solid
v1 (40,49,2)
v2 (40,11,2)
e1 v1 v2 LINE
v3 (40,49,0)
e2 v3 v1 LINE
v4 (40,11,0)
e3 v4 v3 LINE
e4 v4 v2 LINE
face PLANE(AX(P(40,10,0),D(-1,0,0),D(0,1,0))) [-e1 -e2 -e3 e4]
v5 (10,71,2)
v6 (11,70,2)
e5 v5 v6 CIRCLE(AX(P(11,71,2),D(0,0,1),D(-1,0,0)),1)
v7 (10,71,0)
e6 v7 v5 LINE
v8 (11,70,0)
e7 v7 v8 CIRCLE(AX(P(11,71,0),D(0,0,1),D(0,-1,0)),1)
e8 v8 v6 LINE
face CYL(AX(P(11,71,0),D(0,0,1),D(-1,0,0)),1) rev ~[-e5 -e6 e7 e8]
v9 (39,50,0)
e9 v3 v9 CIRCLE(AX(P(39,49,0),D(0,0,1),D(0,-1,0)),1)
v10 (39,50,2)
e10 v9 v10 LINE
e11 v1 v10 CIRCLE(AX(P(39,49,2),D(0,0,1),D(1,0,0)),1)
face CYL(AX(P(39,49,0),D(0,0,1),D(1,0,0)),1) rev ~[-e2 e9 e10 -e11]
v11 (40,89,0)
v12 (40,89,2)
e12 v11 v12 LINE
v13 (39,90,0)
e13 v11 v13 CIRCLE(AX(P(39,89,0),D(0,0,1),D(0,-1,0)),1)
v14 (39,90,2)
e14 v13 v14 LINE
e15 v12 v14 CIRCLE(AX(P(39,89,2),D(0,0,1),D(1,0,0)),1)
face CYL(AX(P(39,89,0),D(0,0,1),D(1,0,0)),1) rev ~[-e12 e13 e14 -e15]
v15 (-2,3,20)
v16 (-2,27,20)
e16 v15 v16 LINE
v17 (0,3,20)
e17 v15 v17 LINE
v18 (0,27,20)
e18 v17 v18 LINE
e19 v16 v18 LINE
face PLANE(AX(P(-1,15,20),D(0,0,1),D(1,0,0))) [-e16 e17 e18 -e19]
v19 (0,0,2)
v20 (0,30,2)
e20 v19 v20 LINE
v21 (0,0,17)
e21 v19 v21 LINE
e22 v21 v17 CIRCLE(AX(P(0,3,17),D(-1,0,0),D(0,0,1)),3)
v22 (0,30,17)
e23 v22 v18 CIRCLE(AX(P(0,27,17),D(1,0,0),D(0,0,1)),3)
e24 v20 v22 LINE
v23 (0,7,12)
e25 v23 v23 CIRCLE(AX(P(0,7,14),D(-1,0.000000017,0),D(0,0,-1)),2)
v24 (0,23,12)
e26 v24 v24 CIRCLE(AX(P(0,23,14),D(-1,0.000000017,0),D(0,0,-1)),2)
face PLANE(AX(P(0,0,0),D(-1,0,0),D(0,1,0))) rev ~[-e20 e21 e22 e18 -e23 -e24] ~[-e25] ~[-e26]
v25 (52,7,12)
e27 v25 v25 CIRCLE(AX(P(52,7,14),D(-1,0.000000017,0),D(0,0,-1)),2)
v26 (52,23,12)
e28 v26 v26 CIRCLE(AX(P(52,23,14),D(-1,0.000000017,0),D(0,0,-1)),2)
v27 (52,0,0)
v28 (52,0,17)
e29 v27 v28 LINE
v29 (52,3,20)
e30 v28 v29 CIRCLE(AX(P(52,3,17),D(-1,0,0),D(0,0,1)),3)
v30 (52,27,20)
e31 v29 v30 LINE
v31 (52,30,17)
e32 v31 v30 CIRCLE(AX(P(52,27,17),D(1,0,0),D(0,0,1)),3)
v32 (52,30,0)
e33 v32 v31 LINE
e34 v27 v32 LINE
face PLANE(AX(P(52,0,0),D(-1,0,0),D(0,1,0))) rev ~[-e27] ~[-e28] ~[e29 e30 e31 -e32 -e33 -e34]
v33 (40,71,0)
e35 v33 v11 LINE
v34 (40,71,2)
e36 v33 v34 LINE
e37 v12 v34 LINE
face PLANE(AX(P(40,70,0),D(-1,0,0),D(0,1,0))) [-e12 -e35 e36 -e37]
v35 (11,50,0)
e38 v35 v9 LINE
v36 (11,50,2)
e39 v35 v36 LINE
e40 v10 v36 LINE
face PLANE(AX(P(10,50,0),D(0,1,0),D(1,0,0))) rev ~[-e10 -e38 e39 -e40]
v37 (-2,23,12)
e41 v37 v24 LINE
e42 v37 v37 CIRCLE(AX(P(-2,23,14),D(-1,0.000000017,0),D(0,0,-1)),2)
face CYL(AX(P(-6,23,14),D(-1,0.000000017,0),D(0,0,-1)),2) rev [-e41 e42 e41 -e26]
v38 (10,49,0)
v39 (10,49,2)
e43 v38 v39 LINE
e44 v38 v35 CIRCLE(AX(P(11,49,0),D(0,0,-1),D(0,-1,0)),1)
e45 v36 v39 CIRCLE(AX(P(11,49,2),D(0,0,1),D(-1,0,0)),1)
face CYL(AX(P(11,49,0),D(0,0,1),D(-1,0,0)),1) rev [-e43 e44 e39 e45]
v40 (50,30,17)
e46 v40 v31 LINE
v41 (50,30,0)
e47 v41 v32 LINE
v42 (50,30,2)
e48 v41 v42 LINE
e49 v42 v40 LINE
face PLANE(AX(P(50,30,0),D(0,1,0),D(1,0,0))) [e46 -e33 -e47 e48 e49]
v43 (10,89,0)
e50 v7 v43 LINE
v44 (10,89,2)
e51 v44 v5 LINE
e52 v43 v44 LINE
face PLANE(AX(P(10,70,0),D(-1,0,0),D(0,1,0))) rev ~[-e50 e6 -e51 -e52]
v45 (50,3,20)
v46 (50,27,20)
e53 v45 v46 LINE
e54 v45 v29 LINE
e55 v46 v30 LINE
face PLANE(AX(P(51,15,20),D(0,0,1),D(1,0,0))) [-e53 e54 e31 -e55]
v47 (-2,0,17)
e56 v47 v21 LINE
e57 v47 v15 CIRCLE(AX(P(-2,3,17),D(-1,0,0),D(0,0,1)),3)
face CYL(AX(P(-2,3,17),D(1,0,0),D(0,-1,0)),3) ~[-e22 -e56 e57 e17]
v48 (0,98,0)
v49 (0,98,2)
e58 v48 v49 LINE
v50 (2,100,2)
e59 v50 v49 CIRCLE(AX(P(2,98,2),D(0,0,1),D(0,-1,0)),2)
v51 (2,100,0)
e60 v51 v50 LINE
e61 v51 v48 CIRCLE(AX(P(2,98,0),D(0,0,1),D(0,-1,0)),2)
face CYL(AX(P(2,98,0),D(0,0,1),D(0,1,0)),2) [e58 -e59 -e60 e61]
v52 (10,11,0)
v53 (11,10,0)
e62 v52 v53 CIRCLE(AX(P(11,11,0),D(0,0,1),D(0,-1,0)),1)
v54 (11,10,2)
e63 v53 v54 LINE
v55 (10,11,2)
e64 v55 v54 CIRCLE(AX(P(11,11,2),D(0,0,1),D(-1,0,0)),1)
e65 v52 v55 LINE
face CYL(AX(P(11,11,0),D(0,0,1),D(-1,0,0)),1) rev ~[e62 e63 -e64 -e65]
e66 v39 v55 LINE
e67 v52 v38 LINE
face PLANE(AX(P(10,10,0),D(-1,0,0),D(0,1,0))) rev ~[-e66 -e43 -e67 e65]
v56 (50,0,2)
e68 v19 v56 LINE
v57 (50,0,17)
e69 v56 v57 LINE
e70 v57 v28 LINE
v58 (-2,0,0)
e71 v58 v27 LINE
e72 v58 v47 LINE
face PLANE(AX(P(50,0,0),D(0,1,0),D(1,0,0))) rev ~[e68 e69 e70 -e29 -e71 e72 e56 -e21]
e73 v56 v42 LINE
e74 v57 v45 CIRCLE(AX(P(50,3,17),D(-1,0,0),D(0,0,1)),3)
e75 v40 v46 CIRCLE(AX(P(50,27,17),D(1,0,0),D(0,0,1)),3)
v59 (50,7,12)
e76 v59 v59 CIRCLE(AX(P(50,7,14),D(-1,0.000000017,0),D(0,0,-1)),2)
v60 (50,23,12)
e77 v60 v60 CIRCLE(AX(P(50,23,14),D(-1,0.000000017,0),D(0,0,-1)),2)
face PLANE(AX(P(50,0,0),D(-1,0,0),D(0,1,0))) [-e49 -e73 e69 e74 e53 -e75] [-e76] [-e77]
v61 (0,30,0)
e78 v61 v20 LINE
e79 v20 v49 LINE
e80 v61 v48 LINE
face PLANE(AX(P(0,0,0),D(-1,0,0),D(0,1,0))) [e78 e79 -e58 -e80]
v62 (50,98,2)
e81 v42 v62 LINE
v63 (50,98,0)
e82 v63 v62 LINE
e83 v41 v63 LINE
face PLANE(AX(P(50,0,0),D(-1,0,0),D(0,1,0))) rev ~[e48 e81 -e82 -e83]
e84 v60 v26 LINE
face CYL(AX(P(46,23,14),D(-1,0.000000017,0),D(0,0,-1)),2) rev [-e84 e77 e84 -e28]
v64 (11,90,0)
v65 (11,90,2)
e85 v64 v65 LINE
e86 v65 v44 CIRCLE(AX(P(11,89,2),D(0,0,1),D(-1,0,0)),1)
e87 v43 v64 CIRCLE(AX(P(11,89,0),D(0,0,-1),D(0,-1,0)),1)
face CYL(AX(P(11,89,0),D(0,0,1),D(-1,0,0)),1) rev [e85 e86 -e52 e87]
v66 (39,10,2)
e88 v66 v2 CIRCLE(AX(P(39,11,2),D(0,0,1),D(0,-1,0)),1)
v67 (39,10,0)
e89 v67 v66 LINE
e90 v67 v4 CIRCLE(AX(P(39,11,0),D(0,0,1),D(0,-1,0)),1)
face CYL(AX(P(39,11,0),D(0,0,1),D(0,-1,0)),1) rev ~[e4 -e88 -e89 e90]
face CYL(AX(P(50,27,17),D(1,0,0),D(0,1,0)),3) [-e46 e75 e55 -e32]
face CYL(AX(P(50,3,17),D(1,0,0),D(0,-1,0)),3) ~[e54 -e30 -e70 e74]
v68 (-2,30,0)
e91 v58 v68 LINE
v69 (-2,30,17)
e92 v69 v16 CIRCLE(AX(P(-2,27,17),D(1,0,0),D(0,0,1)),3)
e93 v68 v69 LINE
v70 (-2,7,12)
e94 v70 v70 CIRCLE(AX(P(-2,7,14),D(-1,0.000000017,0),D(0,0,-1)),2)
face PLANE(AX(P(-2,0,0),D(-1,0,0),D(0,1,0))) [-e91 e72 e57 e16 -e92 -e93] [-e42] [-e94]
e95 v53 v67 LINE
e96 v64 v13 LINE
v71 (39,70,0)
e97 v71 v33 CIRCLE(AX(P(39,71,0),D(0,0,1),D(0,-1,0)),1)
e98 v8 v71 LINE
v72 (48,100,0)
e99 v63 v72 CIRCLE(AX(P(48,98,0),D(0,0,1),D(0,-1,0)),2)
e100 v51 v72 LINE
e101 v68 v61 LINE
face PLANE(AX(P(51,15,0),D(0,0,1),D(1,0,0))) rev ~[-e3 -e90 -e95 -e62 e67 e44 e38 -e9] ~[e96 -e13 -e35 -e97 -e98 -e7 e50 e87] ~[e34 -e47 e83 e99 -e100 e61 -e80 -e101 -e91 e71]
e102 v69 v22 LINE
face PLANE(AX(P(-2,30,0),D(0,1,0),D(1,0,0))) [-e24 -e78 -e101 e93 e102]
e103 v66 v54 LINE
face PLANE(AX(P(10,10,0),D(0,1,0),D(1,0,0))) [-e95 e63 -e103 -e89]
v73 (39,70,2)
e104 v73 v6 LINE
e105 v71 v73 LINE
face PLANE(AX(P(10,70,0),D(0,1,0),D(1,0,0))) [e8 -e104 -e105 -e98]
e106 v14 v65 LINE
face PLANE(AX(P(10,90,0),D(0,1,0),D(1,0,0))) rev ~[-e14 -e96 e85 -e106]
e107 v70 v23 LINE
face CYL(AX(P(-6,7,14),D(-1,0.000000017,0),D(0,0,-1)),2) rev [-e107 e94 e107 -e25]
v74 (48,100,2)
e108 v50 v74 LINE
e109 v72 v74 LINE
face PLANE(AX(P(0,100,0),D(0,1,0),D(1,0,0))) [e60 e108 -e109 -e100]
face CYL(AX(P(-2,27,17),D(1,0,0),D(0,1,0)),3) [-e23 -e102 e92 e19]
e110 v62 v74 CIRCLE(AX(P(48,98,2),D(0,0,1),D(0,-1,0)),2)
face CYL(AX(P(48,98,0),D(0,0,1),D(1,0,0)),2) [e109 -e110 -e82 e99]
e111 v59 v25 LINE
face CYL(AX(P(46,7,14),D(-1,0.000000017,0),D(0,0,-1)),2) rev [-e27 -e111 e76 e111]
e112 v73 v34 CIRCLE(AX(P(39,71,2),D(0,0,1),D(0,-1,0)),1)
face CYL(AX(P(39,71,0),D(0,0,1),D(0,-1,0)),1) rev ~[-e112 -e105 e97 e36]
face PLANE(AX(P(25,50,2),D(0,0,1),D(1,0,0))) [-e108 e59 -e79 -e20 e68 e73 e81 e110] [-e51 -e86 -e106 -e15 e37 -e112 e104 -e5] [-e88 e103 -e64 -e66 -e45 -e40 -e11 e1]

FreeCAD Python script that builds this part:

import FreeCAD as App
import Part
import Sketcher
from FreeCAD import Vector


def edges_at(feature, points):
    """Names of the edges that pass closest to the given points."""
    edges = feature.Shape.Edges
    near = lambda p: min(range(len(edges)), key=lambda i: edges[i].distToShape(Part.Vertex(*p))[0])
    return sorted({f"Edge{near(p) + 1}" for p in points})


def add_polygon(sketch, points):
    """Adds a closed chain of lines whose ends are joined by coincident constraints."""
    first, n = sketch.GeometryCount, len(points)
    for a, b in zip(points, points[1:] + points[:1]):
        sketch.addGeometry(Part.LineSegment(App.Vector(*a, 0), App.Vector(*b, 0)), False)
    for i in range(n):
        sketch.addConstraint(Sketcher.Constraint("Coincident", first + i, 2, first + (i + 1) % n, 1))

doc = App.newDocument("Part")
body = doc.addObject("PartDesign::Body", "Body")

sketch1 = doc.addObject("Sketcher::SketchObject", "Sketch")
body.addObject(sketch1)
sketch1.AttachmentSupport = (doc.XY_Plane, [""])
sketch1.MapMode = "FlatFace"
sketch1.addGeometry(Part.Circle(Vector(0, 0, 0), Vector(0, 0, 1), 2), False)
sketch1.addConstraint([
    Sketcher.Constraint("Coincident", 0, 3, -1, 1),
    Sketcher.Constraint("Diameter", 0, 4.0),
])
pad1 = doc.addObject("PartDesign::Pad", "Pad")
body.addObject(pad1)
pad1.Profile = sketch1
pad1.Length = 10
body2 = doc.addObject("PartDesign::Body", "Body001")
doc.recompute()

body.Placement = App.Placement(Vector(0, 0, 0), App.Rotation(Vector(0, 1, 0), 90))
boolean = doc.addObject("PartDesign::Boolean", "Boolean")
body2.addObject(boolean)
boolean.Type = "Fuse"
boolean.addObjects([body])
body3 = doc.addObject("PartDesign::Body", "Body002")
doc.recompute()

body2.Placement = App.Placement(Vector(-6, 23, 14), App.Rotation(Vector(0, 0, 1), 0))
boolean2 = doc.addObject("PartDesign::Boolean", "Boolean001")
body3.addObject(boolean2)
boolean2.Type = "Fuse"
boolean2.addObjects([body2])
body4 = doc.addObject("PartDesign::Body", "Body003")

sketch2 = doc.addObject("Sketcher::SketchObject", "Sketch001")
body4.addObject(sketch2)
sketch2.AttachmentSupport = (doc.getObject("XY_Plane003"), [""])
sketch2.MapMode = "FlatFace"
sketch2.addGeometry(Part.Circle(Vector(0, 0, 0), Vector(0, 0, 1), 2), False)
sketch2.addConstraint([
    Sketcher.Constraint("Coincident", 0, 3, -1, 1),
    Sketcher.Constraint("Diameter", 0, 4.0),
])
pad2 = doc.addObject("PartDesign::Pad", "Pad001")
body4.addObject(pad2)
pad2.Profile = sketch2
pad2.Length = 10
body5 = doc.addObject("PartDesign::Body", "Body004")
doc.recompute()

body4.Placement = App.Placement(Vector(0, 0, 0), App.Rotation(Vector(0, 1, 0), 90))
boolean3 = doc.addObject("PartDesign::Boolean", "Boolean002")
body5.addObject(boolean3)
boolean3.Type = "Fuse"
boolean3.addObjects([body4])
body6 = doc.addObject("PartDesign::Body", "Body005")
doc.recompute()

body5.Placement = App.Placement(Vector(-6, 7, 14), App.Rotation(Vector(0, 0, 1), 0))
boolean4 = doc.addObject("PartDesign::Boolean", "Boolean003")
body6.addObject(boolean4)
boolean4.Type = "Fuse"
boolean4.addObjects([body5])
body7 = doc.addObject("PartDesign::Body", "Body006")

sketch3 = doc.addObject("Sketcher::SketchObject", "Sketch002")
body7.addObject(sketch3)
sketch3.AttachmentSupport = (doc.getObject("XY_Plane006"), [""])
sketch3.MapMode = "FlatFace"
add_polygon(sketch3, [(-2, 30), (-2, 0), (0, 0), (0, 30)])
sketch3.addConstraint([
    Sketcher.Constraint("Vertical", 0),
    Sketcher.Constraint("Horizontal", 1),
    Sketcher.Constraint("Vertical", 2),
    Sketcher.Constraint("Horizontal", 3),
    Sketcher.Constraint("Coincident", 1, 2, -1, 1),
    Sketcher.Constraint("DistanceX", 1, 1, 1, 2, 2.0),
    Sketcher.Constraint("DistanceY", 0, 2, 0, 1, 30.0),
])
pad3 = doc.addObject("PartDesign::Pad", "Pad002")
body7.addObject(pad3)
pad3.Profile = sketch3
pad3.Length = 20
doc.recompute()

fillet = doc.addObject("PartDesign::Fillet", "Fillet")
body7.addObject(fillet)
fillet.Base = (pad3, edges_at(pad3, [(-1, 0, 20), (-1, 30, 20)]))
fillet.Radius = 3
doc.recompute()

boolean5 = doc.addObject("PartDesign::Boolean", "Boolean004")
body7.addObject(boolean5)
boolean5.Type = "Cut"
boolean5.addObjects([body6])
doc.recompute()

boolean6 = doc.addObject("PartDesign::Boolean", "Boolean005")
body7.addObject(boolean6)
boolean6.Type = "Cut"
boolean6.addObjects([body3])
body8 = doc.addObject("PartDesign::Body", "Body007")

sketch4 = doc.addObject("Sketcher::SketchObject", "Sketch003")
body8.addObject(sketch4)
sketch4.AttachmentSupport = (doc.getObject("XY_Plane007"), [""])
sketch4.MapMode = "FlatFace"
sketch4.addGeometry(Part.Circle(Vector(0, 0, 0), Vector(0, 0, 1), 2), False)
sketch4.addConstraint([
    Sketcher.Constraint("Coincident", 0, 3, -1, 1),
    Sketcher.Constraint("Diameter", 0, 4.0),
])
pad4 = doc.addObject("PartDesign::Pad", "Pad003")
body8.addObject(pad4)
pad4.Profile = sketch4
pad4.Length = 10
body9 = doc.addObject("PartDesign::Body", "Body008")
doc.recompute()

body8.Placement = App.Placement(Vector(0, 0, 0), App.Rotation(Vector(0, 1, 0), 90))
boolean7 = doc.addObject("PartDesign::Boolean", "Boolean006")
body9.addObject(boolean7)
boolean7.Type = "Fuse"
boolean7.addObjects([body8])
body10 = doc.addObject("PartDesign::Body", "Body009")
doc.recompute()

body9.Placement = App.Placement(Vector(-6, 23, 14), App.Rotation(Vector(0, 0, 1), 0))
boolean8 = doc.addObject("PartDesign::Boolean", "Boolean007")
body10.addObject(boolean8)
boolean8.Type = "Fuse"
boolean8.addObjects([body9])
body11 = doc.addObject("PartDesign::Body", "Body010")

sketch5 = doc.addObject("Sketcher::SketchObject", "Sketch004")
body11.addObject(sketch5)
sketch5.AttachmentSupport = (doc.getObject("XY_Plane010"), [""])
sketch5.MapMode = "FlatFace"
sketch5.addGeometry(Part.Circle(Vector(0, 0, 0), Vector(0, 0, 1), 2), False)
sketch5.addConstraint([
    Sketcher.Constraint("Coincident", 0, 3, -1, 1),
    Sketcher.Constraint("Diameter", 0, 4.0),
])
pad5 = doc.addObject("PartDesign::Pad", "Pad004")
body11.addObject(pad5)
pad5.Profile = sketch5
pad5.Length = 10
body12 = doc.addObject("PartDesign::Body", "Body011")
doc.recompute()

body11.Placement = App.Placement(Vector(0, 0, 0), App.Rotation(Vector(0, 1, 0), 90))
boolean9 = doc.addObject("PartDesign::Boolean", "Boolean008")
body12.addObject(boolean9)
boolean9.Type = "Fuse"
boolean9.addObjects([body11])
body13 = doc.addObject("PartDesign::Body", "Body012")
doc.recompute()

body12.Placement = App.Placement(Vector(-6, 7, 14), App.Rotation(Vector(0, 0, 1), 0))
boolean10 = doc.addObject("PartDesign::Boolean", "Boolean009")
body13.addObject(boolean10)
boolean10.Type = "Fuse"
boolean10.addObjects([body12])
body14 = doc.addObject("PartDesign::Body", "Body013")

sketch6 = doc.addObject("Sketcher::SketchObject", "Sketch005")
body14.addObject(sketch6)
sketch6.AttachmentSupport = (doc.getObject("XY_Plane013"), [""])
sketch6.MapMode = "FlatFace"
add_polygon(sketch6, [(-2, 30), (-2, 0), (0, 0), (0, 30)])
sketch6.addConstraint([
    Sketcher.Constraint("Vertical", 0),
    Sketcher.Constraint("Horizontal", 1),
    Sketcher.Constraint("Vertical", 2),
    Sketcher.Constraint("Horizontal", 3),
    Sketcher.Constraint("Coincident", 1, 2, -1, 1),
    Sketcher.Constraint("DistanceX", 1, 1, 1, 2, 2.0),
    Sketcher.Constraint("DistanceY", 0, 2, 0, 1, 30.0),
])
pad6 = doc.addObject("PartDesign::Pad", "Pad005")
body14.addObject(pad6)
pad6.Profile = sketch6
pad6.Length = 20
doc.recompute()

fillet2 = doc.addObject("PartDesign::Fillet", "Fillet001")
body14.addObject(fillet2)
fillet2.Base = (pad6, edges_at(pad6, [(-1, 0, 20), (-1, 30, 20)]))
fillet2.Radius = 3
doc.recompute()

boolean11 = doc.addObject("PartDesign::Boolean", "Boolean010")
body14.addObject(boolean11)
boolean11.Type = "Cut"
boolean11.addObjects([body13])
doc.recompute()

boolean12 = doc.addObject("PartDesign::Boolean", "Boolean011")
body14.addObject(boolean12)
boolean12.Type = "Cut"
boolean12.addObjects([body10])
body15 = doc.addObject("PartDesign::Body", "Body014")
doc.recompute()

body14.Placement = App.Placement(Vector(52, 0, 0), App.Rotation(Vector(0, 0, 1), 0))
boolean13 = doc.addObject("PartDesign::Boolean", "Boolean012")
body15.addObject(boolean13)
boolean13.Type = "Fuse"
boolean13.addObjects([body14])
body16 = doc.addObject("PartDesign::Body", "Body015")

sketch7 = doc.addObject("Sketcher::SketchObject", "Sketch006")
body16.addObject(sketch7)
sketch7.AttachmentSupport = (doc.getObject("XY_Plane015"), [""])
sketch7.MapMode = "FlatFace"
add_polygon(sketch7, [(10, 50), (10, 10), (40, 10), (40, 50)])
sketch7.addConstraint([
    Sketcher.Constraint("Vertical", 0),
    Sketcher.Constraint("Horizontal", 1),
    Sketcher.Constraint("Vertical", 2),
    Sketcher.Constraint("Horizontal", 3),
    Sketcher.Constraint("DistanceX", 1, 1, 1, 2, 30.0),
    Sketcher.Constraint("DistanceY", 0, 2, 0, 1, 40.0),
    Sketcher.Constraint("DistanceX", -1, 1, 0, 2, 10.0),
    Sketcher.Constraint("DistanceY", -1, 1, 0, 2, 10.0),
])
pad7 = doc.addObject("PartDesign::Pad", "Pad006")
body16.addObject(pad7)
pad7.Profile = sketch7
pad7.Length = 10
doc.recompute()

fillet3 = doc.addObject("PartDesign::Fillet", "Fillet002")
body16.addObject(fillet3)
fillet3.Base = (pad7, edges_at(pad7, [
    (10, 10, 5),
    (10, 50, 5),
    (40, 10, 5),
    (40, 50, 5),
]))
fillet3.Radius = 1
body17 = doc.addObject("PartDesign::Body", "Body016")

sketch8 = doc.addObject("Sketcher::SketchObject", "Sketch007")
body17.addObject(sketch8)
sketch8.AttachmentSupport = (doc.getObject("XY_Plane016"), [""])
sketch8.MapMode = "FlatFace"
add_polygon(sketch8, [(10, 90), (10, 70), (40, 70), (40, 90)])
sketch8.addConstraint([
    Sketcher.Constraint("Vertical", 0),
    Sketcher.Constraint("Horizontal", 1),
    Sketcher.Constraint("Vertical", 2),
    Sketcher.Constraint("Horizontal", 3),
    Sketcher.Constraint("DistanceX", 1, 1, 1, 2, 30.0),
    Sketcher.Constraint("DistanceY", 0, 2, 0, 1, 20.0),
    Sketcher.Constraint("DistanceX", -1, 1, 0, 2, 10.0),
    Sketcher.Constraint("DistanceY", -1, 1, 0, 2, 70.0),
])
pad8 = doc.addObject("PartDesign::Pad", "Pad007")
body17.addObject(pad8)
pad8.Profile = sketch8
pad8.Length = 10
doc.recompute()

fillet4 = doc.addObject("PartDesign::Fillet", "Fillet003")
body17.addObject(fillet4)
fillet4.Base = (pad8, edges_at(pad8, [
    (10, 70, 5),
    (10, 90, 5),
    (40, 70, 5),
    (40, 90, 5),
]))
fillet4.Radius = 1
body18 = doc.addObject("PartDesign::Body", "Body017")

sketch9 = doc.addObject("Sketcher::SketchObject", "Sketch008")
body18.addObject(sketch9)
sketch9.AttachmentSupport = (doc.getObject("XY_Plane017"), [""])
sketch9.MapMode = "FlatFace"
add_polygon(sketch9, [(0, 100), (0, 0), (50, 0), (50, 100)])
sketch9.addConstraint([
    Sketcher.Constraint("Vertical", 0),
    Sketcher.Constraint("Horizontal", 1),
    Sketcher.Constraint("Vertical", 2),
    Sketcher.Constraint("Horizontal", 3),
    Sketcher.Constraint("Coincident", 0, 2, -1, 1),
    Sketcher.Constraint("DistanceX", 1, 1, 1, 2, 50.0),
    Sketcher.Constraint("DistanceY", 0, 2, 0, 1, 100.0),
])
pad9 = doc.addObject("PartDesign::Pad", "Pad008")
body18.addObject(pad9)
pad9.Profile = sketch9
pad9.Length = 2
doc.recompute()

fillet5 = doc.addObject("PartDesign::Fillet", "Fillet004")
body18.addObject(fillet5)
fillet5.Base = (pad9, edges_at(pad9, [(50, 100, 1)]))
fillet5.Radius = 2
doc.recompute()

fillet6 = doc.addObject("PartDesign::Fillet", "Fillet005")
body18.addObject(fillet6)
fillet6.Base = (fillet5, edges_at(fillet5, [(0, 100, 1)]))
fillet6.Radius = 2
doc.recompute()

boolean14 = doc.addObject("PartDesign::Boolean", "Boolean013")
body18.addObject(boolean14)
boolean14.Type = "Cut"
boolean14.addObjects([body17])
doc.recompute()

boolean15 = doc.addObject("PartDesign::Boolean", "Boolean014")
body18.addObject(boolean15)
boolean15.Type = "Cut"
boolean15.addObjects([body16])
doc.recompute()

boolean16 = doc.addObject("PartDesign::Boolean", "Boolean015")
body18.addObject(boolean16)
boolean16.Type = "Fuse"
boolean16.addObjects([body7])
doc.recompute()

boolean17 = doc.addObject("PartDesign::Boolean", "Boolean016")
body18.addObject(boolean17)
boolean17.Type = "Fuse"
boolean17.addObjects([body15])

doc.recompute()
